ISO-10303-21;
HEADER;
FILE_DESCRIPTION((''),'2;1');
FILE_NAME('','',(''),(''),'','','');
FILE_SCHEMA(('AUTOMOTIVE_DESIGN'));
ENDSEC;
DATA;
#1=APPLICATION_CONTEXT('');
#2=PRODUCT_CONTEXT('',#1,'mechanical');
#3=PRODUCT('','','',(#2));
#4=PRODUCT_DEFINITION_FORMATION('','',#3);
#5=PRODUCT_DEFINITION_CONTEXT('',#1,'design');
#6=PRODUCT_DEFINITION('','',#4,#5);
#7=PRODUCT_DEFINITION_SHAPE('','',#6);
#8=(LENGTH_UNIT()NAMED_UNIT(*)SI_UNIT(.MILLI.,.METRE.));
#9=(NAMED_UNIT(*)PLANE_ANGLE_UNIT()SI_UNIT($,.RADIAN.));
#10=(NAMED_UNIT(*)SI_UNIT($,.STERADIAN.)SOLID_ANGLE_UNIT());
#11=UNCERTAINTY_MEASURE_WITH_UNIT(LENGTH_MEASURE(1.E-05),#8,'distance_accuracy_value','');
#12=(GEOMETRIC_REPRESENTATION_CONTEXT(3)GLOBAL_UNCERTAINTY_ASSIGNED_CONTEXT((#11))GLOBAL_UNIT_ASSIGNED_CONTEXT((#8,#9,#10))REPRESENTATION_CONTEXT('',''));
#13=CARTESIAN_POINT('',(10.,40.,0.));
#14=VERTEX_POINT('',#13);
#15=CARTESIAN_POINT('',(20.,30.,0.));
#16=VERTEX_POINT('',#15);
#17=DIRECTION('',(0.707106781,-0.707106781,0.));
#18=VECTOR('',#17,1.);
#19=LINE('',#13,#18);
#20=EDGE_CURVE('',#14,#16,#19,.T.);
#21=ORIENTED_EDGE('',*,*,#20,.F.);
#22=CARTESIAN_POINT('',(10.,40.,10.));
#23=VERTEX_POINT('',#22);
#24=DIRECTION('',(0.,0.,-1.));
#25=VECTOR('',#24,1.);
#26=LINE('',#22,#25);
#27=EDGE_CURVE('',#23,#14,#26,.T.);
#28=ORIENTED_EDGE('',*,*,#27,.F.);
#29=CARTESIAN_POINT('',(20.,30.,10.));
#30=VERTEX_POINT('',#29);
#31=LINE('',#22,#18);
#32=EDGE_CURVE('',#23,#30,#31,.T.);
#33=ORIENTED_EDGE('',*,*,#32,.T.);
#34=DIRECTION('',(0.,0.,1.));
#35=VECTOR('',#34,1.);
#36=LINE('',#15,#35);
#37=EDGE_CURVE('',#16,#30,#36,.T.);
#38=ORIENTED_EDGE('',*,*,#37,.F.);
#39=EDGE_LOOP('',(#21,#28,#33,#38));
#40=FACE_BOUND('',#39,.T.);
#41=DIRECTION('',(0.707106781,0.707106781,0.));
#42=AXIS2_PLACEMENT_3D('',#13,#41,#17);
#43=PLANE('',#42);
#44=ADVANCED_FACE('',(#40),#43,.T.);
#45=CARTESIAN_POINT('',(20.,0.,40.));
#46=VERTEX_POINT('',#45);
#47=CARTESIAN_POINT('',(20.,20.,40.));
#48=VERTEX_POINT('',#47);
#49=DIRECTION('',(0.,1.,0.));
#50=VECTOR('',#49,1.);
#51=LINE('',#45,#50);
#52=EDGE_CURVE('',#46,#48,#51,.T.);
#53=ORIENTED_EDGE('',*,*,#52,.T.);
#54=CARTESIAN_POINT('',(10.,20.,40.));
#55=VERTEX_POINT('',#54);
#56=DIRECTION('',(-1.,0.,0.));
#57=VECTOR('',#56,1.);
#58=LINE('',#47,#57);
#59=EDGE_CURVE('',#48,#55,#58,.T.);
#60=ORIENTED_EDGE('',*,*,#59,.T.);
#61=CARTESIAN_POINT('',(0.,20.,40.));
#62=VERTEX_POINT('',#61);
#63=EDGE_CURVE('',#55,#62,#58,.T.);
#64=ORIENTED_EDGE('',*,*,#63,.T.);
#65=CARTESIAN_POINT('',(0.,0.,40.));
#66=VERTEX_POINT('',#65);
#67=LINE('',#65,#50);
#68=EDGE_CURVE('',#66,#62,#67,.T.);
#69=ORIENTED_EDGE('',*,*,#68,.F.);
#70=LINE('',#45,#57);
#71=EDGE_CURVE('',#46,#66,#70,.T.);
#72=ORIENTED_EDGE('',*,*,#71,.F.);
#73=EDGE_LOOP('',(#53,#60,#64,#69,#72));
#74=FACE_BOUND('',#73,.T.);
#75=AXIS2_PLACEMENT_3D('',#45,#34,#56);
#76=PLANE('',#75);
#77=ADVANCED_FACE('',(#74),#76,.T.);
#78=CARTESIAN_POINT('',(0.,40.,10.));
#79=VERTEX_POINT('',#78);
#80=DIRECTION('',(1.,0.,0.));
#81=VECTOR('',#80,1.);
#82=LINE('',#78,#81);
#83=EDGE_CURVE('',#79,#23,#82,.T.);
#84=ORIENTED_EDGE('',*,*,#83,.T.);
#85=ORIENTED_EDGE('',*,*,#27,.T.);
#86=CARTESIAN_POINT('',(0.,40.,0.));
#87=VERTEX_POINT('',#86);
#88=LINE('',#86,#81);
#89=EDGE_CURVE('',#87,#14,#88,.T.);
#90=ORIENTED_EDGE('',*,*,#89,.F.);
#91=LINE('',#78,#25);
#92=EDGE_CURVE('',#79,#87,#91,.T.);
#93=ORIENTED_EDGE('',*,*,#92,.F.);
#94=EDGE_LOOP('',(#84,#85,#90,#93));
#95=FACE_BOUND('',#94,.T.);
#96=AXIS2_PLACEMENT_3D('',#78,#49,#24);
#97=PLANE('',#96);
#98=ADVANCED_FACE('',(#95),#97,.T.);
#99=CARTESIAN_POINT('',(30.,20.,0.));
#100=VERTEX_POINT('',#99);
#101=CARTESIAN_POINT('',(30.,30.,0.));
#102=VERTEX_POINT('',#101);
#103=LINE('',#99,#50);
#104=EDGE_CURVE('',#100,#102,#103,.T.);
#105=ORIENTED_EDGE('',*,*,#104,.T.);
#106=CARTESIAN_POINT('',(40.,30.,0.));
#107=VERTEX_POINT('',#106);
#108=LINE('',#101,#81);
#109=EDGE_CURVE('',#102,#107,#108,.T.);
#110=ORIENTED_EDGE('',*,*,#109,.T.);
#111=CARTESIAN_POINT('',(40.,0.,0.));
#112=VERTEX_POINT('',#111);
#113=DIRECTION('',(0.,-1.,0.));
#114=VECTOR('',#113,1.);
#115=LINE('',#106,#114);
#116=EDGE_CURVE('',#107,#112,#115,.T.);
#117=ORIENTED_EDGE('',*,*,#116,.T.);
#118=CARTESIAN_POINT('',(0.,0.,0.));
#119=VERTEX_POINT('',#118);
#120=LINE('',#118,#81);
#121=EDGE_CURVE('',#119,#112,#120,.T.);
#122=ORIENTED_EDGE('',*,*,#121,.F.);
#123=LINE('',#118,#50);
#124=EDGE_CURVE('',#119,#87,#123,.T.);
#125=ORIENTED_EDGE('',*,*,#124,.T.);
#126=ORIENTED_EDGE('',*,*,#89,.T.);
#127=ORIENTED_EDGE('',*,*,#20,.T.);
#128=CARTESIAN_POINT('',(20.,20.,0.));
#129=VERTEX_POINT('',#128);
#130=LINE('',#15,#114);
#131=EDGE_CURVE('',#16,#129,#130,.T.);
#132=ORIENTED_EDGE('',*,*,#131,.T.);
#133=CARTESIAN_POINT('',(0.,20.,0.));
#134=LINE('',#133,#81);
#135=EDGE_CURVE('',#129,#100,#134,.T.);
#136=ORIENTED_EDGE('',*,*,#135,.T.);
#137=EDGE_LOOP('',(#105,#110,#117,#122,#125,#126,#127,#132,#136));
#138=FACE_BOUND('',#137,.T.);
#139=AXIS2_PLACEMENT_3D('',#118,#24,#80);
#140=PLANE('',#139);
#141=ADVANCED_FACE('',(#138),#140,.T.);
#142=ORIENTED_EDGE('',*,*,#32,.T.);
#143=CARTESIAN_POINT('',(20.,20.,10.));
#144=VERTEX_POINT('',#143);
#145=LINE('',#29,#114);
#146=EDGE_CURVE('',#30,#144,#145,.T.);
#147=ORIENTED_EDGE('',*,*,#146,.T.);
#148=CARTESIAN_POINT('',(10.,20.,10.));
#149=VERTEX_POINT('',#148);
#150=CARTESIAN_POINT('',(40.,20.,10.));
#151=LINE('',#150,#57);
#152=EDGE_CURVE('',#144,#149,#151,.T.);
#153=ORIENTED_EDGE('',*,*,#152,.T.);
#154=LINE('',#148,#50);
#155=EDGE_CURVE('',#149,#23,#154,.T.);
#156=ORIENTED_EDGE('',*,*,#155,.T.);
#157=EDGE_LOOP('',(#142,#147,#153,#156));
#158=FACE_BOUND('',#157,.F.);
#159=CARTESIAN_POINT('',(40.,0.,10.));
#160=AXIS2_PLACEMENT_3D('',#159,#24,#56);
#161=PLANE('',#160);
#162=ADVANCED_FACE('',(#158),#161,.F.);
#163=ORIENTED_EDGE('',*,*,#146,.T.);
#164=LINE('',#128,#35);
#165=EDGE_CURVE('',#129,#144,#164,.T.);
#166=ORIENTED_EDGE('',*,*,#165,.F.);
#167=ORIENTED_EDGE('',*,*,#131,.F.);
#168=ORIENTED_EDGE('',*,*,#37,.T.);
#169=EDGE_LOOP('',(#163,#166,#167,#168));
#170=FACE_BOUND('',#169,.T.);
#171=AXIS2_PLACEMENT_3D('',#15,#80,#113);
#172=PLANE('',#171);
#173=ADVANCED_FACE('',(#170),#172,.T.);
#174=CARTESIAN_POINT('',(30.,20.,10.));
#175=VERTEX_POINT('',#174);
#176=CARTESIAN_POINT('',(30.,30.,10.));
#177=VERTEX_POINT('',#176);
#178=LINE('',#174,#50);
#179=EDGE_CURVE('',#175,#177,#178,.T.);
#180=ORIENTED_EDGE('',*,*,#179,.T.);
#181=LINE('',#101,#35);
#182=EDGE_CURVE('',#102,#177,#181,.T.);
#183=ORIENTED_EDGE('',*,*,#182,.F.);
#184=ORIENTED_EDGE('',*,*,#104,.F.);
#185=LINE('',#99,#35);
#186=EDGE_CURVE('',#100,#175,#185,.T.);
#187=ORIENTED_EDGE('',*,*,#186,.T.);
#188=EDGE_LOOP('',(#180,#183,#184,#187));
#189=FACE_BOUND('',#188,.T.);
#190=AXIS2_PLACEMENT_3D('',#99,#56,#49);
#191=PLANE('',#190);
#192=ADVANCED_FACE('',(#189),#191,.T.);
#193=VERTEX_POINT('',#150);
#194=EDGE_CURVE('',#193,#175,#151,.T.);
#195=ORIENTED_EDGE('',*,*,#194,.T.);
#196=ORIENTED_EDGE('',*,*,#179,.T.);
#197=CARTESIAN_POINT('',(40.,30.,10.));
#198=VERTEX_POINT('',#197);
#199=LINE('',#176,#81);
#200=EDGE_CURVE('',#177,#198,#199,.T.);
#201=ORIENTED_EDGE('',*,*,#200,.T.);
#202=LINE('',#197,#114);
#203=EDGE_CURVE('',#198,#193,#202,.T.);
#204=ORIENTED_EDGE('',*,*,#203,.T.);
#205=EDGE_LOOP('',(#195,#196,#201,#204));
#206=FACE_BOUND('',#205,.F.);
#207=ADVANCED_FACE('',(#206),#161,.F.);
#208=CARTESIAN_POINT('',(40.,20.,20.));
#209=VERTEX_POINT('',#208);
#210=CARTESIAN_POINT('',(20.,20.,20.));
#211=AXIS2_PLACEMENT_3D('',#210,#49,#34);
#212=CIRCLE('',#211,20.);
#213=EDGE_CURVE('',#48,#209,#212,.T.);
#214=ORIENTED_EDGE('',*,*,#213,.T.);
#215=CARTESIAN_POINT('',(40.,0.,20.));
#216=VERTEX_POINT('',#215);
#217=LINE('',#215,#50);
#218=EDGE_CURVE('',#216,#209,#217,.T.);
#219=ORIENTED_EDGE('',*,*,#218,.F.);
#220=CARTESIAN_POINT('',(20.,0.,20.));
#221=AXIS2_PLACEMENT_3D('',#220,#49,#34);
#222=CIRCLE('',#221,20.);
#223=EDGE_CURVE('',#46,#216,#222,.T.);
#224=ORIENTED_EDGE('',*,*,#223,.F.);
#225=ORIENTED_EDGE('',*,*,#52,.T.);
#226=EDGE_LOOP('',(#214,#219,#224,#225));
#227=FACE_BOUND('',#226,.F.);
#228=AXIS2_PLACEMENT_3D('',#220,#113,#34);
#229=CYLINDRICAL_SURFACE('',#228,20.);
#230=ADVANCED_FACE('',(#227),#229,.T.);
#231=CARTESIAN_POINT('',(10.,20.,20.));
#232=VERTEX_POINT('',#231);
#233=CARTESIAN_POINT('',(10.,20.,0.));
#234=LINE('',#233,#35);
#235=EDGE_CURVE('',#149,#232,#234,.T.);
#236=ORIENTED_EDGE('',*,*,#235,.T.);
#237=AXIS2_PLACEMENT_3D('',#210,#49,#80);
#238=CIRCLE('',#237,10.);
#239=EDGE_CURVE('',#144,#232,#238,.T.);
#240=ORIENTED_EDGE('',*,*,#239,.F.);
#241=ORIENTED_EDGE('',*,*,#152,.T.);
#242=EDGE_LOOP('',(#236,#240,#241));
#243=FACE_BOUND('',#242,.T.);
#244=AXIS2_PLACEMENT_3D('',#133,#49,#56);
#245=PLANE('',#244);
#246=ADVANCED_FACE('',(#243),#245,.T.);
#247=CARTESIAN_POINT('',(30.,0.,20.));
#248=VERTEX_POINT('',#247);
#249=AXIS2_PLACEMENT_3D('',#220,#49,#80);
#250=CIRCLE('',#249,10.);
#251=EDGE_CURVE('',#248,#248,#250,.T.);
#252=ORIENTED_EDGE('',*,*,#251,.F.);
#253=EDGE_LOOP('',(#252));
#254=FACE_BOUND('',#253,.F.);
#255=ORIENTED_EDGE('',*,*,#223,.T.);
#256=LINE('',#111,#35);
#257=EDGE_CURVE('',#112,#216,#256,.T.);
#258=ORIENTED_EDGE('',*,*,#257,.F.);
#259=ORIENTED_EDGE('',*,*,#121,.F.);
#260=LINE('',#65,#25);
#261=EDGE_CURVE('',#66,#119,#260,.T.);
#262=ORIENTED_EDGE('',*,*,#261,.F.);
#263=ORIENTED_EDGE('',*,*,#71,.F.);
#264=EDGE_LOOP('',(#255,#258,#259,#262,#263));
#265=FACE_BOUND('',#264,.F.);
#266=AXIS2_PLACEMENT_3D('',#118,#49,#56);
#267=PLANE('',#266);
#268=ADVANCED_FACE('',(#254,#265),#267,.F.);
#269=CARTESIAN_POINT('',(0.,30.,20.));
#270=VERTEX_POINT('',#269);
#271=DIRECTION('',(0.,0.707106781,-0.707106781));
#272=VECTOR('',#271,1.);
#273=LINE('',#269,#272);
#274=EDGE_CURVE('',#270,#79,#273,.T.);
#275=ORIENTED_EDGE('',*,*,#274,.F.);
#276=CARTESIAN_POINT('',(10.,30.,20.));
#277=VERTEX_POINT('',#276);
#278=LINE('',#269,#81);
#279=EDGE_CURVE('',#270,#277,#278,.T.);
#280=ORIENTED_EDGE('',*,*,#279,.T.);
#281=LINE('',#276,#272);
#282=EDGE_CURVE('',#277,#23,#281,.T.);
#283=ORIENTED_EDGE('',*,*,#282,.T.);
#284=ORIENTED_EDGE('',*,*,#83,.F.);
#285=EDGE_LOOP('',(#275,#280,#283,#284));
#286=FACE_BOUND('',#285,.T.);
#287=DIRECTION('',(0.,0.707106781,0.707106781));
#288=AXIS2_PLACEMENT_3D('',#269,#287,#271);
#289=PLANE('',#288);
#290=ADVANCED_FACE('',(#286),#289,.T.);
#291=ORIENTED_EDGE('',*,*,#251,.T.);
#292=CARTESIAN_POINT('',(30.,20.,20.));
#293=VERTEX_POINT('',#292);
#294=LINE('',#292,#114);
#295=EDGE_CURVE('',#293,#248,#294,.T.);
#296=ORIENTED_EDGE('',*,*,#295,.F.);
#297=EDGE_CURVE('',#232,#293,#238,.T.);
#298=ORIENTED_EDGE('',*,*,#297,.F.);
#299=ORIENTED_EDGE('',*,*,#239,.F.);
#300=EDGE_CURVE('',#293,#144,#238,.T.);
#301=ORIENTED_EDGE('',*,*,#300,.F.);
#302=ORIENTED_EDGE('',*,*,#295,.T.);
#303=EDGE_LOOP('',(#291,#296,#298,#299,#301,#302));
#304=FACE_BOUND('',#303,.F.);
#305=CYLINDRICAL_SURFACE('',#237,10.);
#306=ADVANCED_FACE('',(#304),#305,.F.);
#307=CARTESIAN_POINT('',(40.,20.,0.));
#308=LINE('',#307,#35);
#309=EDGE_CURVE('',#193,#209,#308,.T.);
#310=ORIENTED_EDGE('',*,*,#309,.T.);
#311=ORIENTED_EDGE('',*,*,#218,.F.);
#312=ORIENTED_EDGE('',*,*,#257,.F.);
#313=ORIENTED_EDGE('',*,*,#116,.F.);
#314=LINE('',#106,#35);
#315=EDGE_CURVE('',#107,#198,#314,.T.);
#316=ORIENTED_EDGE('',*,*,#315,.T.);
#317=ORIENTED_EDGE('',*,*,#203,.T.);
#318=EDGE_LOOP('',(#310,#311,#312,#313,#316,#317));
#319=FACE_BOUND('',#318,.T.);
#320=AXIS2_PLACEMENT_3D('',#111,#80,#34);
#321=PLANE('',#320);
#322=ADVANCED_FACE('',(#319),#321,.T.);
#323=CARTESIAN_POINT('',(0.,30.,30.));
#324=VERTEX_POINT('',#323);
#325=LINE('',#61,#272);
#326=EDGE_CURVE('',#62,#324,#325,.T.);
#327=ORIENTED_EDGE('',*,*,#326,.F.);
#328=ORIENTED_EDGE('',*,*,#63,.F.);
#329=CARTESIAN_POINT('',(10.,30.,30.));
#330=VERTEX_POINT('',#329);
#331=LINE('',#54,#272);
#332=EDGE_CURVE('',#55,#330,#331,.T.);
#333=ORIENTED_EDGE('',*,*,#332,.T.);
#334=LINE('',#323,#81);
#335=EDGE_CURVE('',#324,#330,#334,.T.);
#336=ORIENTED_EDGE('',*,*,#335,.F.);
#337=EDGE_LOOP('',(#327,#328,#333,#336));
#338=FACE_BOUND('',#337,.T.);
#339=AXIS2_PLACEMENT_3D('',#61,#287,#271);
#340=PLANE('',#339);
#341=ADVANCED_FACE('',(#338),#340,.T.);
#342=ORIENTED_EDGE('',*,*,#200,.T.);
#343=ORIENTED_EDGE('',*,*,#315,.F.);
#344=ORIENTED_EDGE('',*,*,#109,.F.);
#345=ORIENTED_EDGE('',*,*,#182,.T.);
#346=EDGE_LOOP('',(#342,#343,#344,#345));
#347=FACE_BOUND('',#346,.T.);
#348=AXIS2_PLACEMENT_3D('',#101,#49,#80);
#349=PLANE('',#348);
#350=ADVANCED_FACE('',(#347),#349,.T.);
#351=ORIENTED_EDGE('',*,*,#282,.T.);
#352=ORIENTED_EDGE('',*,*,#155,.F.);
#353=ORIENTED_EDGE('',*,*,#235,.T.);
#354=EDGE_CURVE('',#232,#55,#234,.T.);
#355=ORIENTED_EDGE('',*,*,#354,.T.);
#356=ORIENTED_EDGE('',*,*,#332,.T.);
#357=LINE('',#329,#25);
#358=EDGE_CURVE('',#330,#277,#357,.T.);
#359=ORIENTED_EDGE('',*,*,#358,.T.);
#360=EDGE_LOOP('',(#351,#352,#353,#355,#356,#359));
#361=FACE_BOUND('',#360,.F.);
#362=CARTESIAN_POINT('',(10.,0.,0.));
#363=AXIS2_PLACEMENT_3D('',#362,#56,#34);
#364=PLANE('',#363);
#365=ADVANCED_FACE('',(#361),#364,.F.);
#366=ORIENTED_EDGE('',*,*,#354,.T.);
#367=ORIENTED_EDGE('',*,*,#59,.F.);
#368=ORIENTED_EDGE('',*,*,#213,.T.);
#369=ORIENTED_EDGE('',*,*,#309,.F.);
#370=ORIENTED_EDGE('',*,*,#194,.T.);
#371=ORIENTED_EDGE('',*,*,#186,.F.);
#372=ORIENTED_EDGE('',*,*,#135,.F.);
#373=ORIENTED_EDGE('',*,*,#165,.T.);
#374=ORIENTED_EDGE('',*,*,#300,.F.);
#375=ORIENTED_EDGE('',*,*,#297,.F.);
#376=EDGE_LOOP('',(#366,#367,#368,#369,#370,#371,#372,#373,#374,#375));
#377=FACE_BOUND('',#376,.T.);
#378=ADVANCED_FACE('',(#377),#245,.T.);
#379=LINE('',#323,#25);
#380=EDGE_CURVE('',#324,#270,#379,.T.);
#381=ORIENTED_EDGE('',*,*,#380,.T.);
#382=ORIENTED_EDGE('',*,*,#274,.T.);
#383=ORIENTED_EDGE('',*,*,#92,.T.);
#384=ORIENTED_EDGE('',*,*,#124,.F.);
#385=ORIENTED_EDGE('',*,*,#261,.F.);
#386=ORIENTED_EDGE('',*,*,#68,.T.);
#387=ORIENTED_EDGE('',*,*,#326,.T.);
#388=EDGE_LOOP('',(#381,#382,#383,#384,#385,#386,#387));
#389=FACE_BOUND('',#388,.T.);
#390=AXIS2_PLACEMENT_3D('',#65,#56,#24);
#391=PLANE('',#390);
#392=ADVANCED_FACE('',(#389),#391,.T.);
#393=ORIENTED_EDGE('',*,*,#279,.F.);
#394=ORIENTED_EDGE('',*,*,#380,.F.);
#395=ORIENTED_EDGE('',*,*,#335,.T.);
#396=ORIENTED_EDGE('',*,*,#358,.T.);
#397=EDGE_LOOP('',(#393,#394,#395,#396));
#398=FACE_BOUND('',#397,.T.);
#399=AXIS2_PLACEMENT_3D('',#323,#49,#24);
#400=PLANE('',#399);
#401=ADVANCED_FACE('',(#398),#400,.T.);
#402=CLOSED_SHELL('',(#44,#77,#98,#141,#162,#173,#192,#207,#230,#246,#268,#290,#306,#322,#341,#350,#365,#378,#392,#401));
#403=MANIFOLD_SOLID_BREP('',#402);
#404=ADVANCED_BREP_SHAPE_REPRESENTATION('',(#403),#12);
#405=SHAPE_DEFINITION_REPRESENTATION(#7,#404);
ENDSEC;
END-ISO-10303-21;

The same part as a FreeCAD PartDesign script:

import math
import FreeCAD as App
import Part
import Sketcher


def add_polygon(sketch, points):
    """Adds a closed chain of lines whose ends are joined by coincident constraints."""
    first, n = sketch.GeometryCount, len(points)
    for a, b in zip(points, points[1:] + points[:1]):
        sketch.addGeometry(Part.LineSegment(App.Vector(*a, 0), App.Vector(*b, 0)), False)
    for i in range(n):
        sketch.addConstraint(Sketcher.Constraint("Coincident", first + i, 2, first + (i + 1) % n, 1))

doc = App.newDocument("Part")
body = doc.addObject("PartDesign::Body", "Body")

sketch1 = doc.addObject("Sketcher::SketchObject", "Sketch")
body.addObject(sketch1)
sketch1.AttachmentSupport = (doc.XZ_Plane, [""])
sketch1.MapMode = "FlatFace"
sketch1.addGeometry(Part.LineSegment(App.Vector(40, 0, 0), App.Vector(0, 0, 0)), False)
sketch1.addGeometry(Part.LineSegment(App.Vector(0, 0, 0), App.Vector(0, 40, 0)), False)
sketch1.addGeometry(Part.LineSegment(App.Vector(0, 40, 0), App.Vector(20, 40, 0)), False)
sketch1.addGeometry(Part.ArcOfCircle(Part.Circle(App.Vector(20, 20, 0), App.Vector(0, 0, 1), 20), math.radians(0), math.radians(90)), False)
sketch1.addGeometry(Part.LineSegment(App.Vector(40, 20, 0), App.Vector(40, 0, 0)), False)
sketch1.addConstraint(Sketcher.Constraint("Coincident", 0, 2, 1, 1))
sketch1.addConstraint(Sketcher.Constraint("Coincident", 1, 2, 2, 1))
sketch1.addConstraint(Sketcher.Constraint("Tangent", 2, 2, 3, 2))
sketch1.addConstraint(Sketcher.Constraint("Tangent", 3, 1, 4, 1))
sketch1.addConstraint(Sketcher.Constraint("Coincident", 4, 2, 0, 1))
sketch1.addConstraint(Sketcher.Constraint("Horizontal", 0))
sketch1.addConstraint(Sketcher.Constraint("Vertical", 1))
sketch1.addConstraint(Sketcher.Constraint("Horizontal", 2))
sketch1.addConstraint(Sketcher.Constraint("Vertical", 4))
sketch1.addConstraint(Sketcher.Constraint("Coincident", 0, 2, -1, 1))
sketch1.addConstraint(Sketcher.Constraint("Equal", 0, 1))
sketch1.addConstraint(Sketcher.Constraint("Radius", 3, 20.0))
sketch1.addConstraint(Sketcher.Constraint("DistanceX", 0, 2, 0, 1, 40.0))
pad1 = doc.addObject("PartDesign::Pad", "Pad")
body.addObject(pad1)
pad1.Profile = sketch1
pad1.Length = 20
pad1.Reversed = True

sketch2 = doc.addObject("Sketcher::SketchObject", "Sketch001")
body.addObject(sketch2)
sketch2.AttachmentSupport = (doc.YZ_Plane, [""])
sketch2.MapMode = "FlatFace"
add_polygon(sketch2, [(40, 0), (20, 0), (20, 40), (30, 30), (30, 20), (40, 10)])
sketch2.addConstraint(Sketcher.Constraint("Horizontal", 0))
sketch2.addConstraint(Sketcher.Constraint("Vertical", 1))
sketch2.addConstraint(Sketcher.Constraint("Vertical", 3))
sketch2.addConstraint(Sketcher.Constraint("Vertical", 5))
sketch2.addConstraint(Sketcher.Constraint("PointOnObject", 0, 2, -1))
sketch2.addConstraint(Sketcher.Constraint("Parallel", 2, 4))
sketch2.addConstraint(Sketcher.Constraint("Equal", 3, 5))
sketch2.addConstraint(Sketcher.Constraint("Equal", 2, 4))
sketch2.addConstraint(Sketcher.Constraint("DistanceY", 3, 2, 3, 1, 10.0))
sketch2.addConstraint(Sketcher.Constraint("DistanceX", 1, 2, 2, 2, 10.0))
sketch2.addConstraint(Sketcher.Constraint("DistanceY", 2, 2, 1, 2, 10.0))
sketch2.addConstraint(Sketcher.Constraint("DistanceX", -1, 1, 0, 2, 20.0))
pad2 = doc.addObject("PartDesign::Pad", "Pad001")
body.addObject(pad2)
pad2.Profile = sketch2
pad2.Length = 10

sketch3 = doc.addObject("Sketcher::SketchObject", "Sketch002")
body.addObject(sketch3)
sketch3.AttachmentSupport = (doc.XY_Plane, [""])
sketch3.MapMode = "FlatFace"
add_polygon(sketch3, [(10, 20), (10, 40), (20, 30), (20, 20)])
add_polygon(sketch3, [(40, 20), (30, 20), (30, 30), (40, 30)])
sketch3.addConstraint(Sketcher.Constraint("Vertical", 0))
sketch3.addConstraint(Sketcher.Constraint("Vertical", 2))
sketch3.addConstraint(Sketcher.Constraint("Horizontal", 3))
sketch3.addConstraint(Sketcher.Constraint("Horizontal", 4))
sketch3.addConstraint(Sketcher.Constraint("Vertical", 5))
sketch3.addConstraint(Sketcher.Constraint("Horizontal", 6))
sketch3.addConstraint(Sketcher.Constraint("Vertical", 7))
sketch3.addConstraint(Sketcher.Constraint("Horizontal", 3, 2, 4, 2))
sketch3.addConstraint(Sketcher.Constraint("Horizontal", 1, 2, 5, 2))
sketch3.addConstraint(Sketcher.Constraint("Equal", 3, 4))
sketch3.addConstraint(Sketcher.Constraint("Equal", 6, 2))
sketch3.addConstraint(Sketcher.Constraint("DistanceX", 3, 2, 3, 1, 10.0))
sketch3.addConstraint(Sketcher.Constraint("DistanceX", -1, 1, 0, 2, 10.0))
sketch3.addConstraint(Sketcher.Constraint("DistanceY", 1, 2, 0, 2, 10.0))
sketch3.addConstraint(Sketcher.Constraint("DistanceX", 2, 2, 4, 2, 10.0))
sketch3.addConstraint(Sketcher.Constraint("DistanceY", -1, 1, 0, 2, 40.0))
pad3 = doc.addObject("PartDesign::Pad", "Pad002")
body.addObject(pad3)
pad3.Profile = sketch3
pad3.Length = 10

sketch4 = doc.addObject("Sketcher::SketchObject", "Sketch003")
body.addObject(sketch4)
sketch4.AttachmentSupport = (doc.XZ_Plane, [""])
sketch4.MapMode = "FlatFace"
sketch4.AttachmentOffset = App.Placement(App.Vector(0, 0, -20), App.Rotation())
sketch4.addGeometry(Part.Circle(App.Vector(20, 20, 0), App.Vector(0, 0, 1), 10), False)
sketch4.addConstraint(Sketcher.Constraint("Diameter", 0, 20.0))
sketch4.addConstraint(Sketcher.Constraint("DistanceX", -1, 1, 0, 3, 20.0))
sketch4.addConstraint(Sketcher.Constraint("DistanceY", -1, 1, 0, 3, 20.0))
pocket1 = doc.addObject("PartDesign::Pocket", "Pocket")
body.addObject(pocket1)
pocket1.Profile = sketch4
pocket1.Length = 36.25
pocket1.Reversed = True

doc.recompute()
